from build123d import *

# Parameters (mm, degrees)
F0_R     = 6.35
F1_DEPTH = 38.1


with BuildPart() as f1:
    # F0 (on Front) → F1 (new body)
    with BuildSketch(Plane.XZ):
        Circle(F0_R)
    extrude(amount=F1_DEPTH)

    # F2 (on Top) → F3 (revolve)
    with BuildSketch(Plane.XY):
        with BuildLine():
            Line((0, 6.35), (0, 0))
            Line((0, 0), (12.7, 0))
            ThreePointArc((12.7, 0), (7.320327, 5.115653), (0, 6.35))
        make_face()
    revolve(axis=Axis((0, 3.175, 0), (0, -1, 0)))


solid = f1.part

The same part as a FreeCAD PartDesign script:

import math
import FreeCAD as App
import Part
import Sketcher
from FreeCAD import Vector
Q = App.Units.Quantity

doc = App.newDocument("Part")
params = doc.addObject("Spreadsheet::Sheet", "Params")
for row, (alias, value) in enumerate([
    ("sketch1_diameter", "0.5 in"),
    ("pad1_length", "1.5 in"),
    ("sketch2_radius", "0.5 in"),
    ("sketch2_width", "0.5 in"),
    ("sketch2_height", "0.25 in"),
    ("revolution_angle", "360 deg"),
], start=1):
    params.set(f"A{row}", alias)
    params.set(f"B{row}", "=" + value)
    params.setAlias(f"B{row}", alias)

body = doc.addObject("PartDesign::Body", "Body")

# Sketch on XZ plane
sketch1 = doc.addObject("Sketcher::SketchObject", "Sketch")
body.addObject(sketch1)
sketch1.AttachmentSupport = (doc.XZ_Plane, [""])
sketch1.MapMode = "FlatFace"
sketch1.addGeometry(Part.Circle(Vector(0, 0, 0), Vector(0, 0, 1), 6), False)
sketch1.addConstraint(Sketcher.Constraint("Coincident", 0, 3, -1, 1))
sketch1.addConstraint(Sketcher.Constraint("Diameter", 0, Q("0.5 in")))
sketch1.setExpression("Constraints[1]", "Params.sketch1_diameter")
pad1 = doc.addObject("PartDesign::Pad", "Pad")
body.addObject(pad1)
pad1.Profile = sketch1
pad1.setExpression("Length", "Params.pad1_length")

# Sketch on XY plane
sketch2 = doc.addObject("Sketcher::SketchObject", "Sketch001")
body.addObject(sketch2)
sketch2.AttachmentSupport = (doc.XY_Plane, [""])
sketch2.MapMode = "FlatFace"
sketch2.addGeometry(Part.LineSegment(Vector(0, 6, 0), Vector(0, 0, 0)), False)
sketch2.addGeometry(Part.LineSegment(Vector(0, 0, 0), Vector(13, 0, 0)), False)
sketch2.addGeometry(Part.ArcOfCircle(Part.Circle(Vector(2, -6, 0), Vector(0, 0, 1), 13), math.radians(29), math.radians(97)), False)
sketch2.addConstraint(Sketcher.Constraint("Coincident", 0, 2, 1, 1))
sketch2.addConstraint(Sketcher.Constraint("Coincident", 1, 2, 2, 1))
sketch2.addConstraint(Sketcher.Constraint("Coincident", 2, 2, 0, 1))
sketch2.addConstraint(Sketcher.Constraint("Vertical", 0))
sketch2.addConstraint(Sketcher.Constraint("Horizontal", 1))
sketch2.addConstraint(Sketcher.Constraint("Coincident", 0, 2, -1, 1))
sketch2.addConstraint(Sketcher.Constraint("Radius", 2, Q("0.5 in")))
sketch2.addConstraint(Sketcher.Constraint("DistanceX", 1, 1, 1, 2, Q("0.5 in")))
sketch2.addConstraint(Sketcher.Constraint("DistanceY", 0, 2, 0, 1, Q("0.25 in")))
sketch2.setExpression("Constraints[6]", "Params.sketch2_radius")
sketch2.setExpression("Constraints[7]", "Params.sketch2_width")
sketch2.setExpression("Constraints[8]", "Params.sketch2_height")
revolution = doc.addObject("PartDesign::Revolution", "Revolution")
body.addObject(revolution)
revolution.Profile = sketch2
revolution.ReferenceAxis = (sketch2, ["V_Axis"])
revolution.setExpression("Angle", "Params.revolution_angle")

doc.recompute()
